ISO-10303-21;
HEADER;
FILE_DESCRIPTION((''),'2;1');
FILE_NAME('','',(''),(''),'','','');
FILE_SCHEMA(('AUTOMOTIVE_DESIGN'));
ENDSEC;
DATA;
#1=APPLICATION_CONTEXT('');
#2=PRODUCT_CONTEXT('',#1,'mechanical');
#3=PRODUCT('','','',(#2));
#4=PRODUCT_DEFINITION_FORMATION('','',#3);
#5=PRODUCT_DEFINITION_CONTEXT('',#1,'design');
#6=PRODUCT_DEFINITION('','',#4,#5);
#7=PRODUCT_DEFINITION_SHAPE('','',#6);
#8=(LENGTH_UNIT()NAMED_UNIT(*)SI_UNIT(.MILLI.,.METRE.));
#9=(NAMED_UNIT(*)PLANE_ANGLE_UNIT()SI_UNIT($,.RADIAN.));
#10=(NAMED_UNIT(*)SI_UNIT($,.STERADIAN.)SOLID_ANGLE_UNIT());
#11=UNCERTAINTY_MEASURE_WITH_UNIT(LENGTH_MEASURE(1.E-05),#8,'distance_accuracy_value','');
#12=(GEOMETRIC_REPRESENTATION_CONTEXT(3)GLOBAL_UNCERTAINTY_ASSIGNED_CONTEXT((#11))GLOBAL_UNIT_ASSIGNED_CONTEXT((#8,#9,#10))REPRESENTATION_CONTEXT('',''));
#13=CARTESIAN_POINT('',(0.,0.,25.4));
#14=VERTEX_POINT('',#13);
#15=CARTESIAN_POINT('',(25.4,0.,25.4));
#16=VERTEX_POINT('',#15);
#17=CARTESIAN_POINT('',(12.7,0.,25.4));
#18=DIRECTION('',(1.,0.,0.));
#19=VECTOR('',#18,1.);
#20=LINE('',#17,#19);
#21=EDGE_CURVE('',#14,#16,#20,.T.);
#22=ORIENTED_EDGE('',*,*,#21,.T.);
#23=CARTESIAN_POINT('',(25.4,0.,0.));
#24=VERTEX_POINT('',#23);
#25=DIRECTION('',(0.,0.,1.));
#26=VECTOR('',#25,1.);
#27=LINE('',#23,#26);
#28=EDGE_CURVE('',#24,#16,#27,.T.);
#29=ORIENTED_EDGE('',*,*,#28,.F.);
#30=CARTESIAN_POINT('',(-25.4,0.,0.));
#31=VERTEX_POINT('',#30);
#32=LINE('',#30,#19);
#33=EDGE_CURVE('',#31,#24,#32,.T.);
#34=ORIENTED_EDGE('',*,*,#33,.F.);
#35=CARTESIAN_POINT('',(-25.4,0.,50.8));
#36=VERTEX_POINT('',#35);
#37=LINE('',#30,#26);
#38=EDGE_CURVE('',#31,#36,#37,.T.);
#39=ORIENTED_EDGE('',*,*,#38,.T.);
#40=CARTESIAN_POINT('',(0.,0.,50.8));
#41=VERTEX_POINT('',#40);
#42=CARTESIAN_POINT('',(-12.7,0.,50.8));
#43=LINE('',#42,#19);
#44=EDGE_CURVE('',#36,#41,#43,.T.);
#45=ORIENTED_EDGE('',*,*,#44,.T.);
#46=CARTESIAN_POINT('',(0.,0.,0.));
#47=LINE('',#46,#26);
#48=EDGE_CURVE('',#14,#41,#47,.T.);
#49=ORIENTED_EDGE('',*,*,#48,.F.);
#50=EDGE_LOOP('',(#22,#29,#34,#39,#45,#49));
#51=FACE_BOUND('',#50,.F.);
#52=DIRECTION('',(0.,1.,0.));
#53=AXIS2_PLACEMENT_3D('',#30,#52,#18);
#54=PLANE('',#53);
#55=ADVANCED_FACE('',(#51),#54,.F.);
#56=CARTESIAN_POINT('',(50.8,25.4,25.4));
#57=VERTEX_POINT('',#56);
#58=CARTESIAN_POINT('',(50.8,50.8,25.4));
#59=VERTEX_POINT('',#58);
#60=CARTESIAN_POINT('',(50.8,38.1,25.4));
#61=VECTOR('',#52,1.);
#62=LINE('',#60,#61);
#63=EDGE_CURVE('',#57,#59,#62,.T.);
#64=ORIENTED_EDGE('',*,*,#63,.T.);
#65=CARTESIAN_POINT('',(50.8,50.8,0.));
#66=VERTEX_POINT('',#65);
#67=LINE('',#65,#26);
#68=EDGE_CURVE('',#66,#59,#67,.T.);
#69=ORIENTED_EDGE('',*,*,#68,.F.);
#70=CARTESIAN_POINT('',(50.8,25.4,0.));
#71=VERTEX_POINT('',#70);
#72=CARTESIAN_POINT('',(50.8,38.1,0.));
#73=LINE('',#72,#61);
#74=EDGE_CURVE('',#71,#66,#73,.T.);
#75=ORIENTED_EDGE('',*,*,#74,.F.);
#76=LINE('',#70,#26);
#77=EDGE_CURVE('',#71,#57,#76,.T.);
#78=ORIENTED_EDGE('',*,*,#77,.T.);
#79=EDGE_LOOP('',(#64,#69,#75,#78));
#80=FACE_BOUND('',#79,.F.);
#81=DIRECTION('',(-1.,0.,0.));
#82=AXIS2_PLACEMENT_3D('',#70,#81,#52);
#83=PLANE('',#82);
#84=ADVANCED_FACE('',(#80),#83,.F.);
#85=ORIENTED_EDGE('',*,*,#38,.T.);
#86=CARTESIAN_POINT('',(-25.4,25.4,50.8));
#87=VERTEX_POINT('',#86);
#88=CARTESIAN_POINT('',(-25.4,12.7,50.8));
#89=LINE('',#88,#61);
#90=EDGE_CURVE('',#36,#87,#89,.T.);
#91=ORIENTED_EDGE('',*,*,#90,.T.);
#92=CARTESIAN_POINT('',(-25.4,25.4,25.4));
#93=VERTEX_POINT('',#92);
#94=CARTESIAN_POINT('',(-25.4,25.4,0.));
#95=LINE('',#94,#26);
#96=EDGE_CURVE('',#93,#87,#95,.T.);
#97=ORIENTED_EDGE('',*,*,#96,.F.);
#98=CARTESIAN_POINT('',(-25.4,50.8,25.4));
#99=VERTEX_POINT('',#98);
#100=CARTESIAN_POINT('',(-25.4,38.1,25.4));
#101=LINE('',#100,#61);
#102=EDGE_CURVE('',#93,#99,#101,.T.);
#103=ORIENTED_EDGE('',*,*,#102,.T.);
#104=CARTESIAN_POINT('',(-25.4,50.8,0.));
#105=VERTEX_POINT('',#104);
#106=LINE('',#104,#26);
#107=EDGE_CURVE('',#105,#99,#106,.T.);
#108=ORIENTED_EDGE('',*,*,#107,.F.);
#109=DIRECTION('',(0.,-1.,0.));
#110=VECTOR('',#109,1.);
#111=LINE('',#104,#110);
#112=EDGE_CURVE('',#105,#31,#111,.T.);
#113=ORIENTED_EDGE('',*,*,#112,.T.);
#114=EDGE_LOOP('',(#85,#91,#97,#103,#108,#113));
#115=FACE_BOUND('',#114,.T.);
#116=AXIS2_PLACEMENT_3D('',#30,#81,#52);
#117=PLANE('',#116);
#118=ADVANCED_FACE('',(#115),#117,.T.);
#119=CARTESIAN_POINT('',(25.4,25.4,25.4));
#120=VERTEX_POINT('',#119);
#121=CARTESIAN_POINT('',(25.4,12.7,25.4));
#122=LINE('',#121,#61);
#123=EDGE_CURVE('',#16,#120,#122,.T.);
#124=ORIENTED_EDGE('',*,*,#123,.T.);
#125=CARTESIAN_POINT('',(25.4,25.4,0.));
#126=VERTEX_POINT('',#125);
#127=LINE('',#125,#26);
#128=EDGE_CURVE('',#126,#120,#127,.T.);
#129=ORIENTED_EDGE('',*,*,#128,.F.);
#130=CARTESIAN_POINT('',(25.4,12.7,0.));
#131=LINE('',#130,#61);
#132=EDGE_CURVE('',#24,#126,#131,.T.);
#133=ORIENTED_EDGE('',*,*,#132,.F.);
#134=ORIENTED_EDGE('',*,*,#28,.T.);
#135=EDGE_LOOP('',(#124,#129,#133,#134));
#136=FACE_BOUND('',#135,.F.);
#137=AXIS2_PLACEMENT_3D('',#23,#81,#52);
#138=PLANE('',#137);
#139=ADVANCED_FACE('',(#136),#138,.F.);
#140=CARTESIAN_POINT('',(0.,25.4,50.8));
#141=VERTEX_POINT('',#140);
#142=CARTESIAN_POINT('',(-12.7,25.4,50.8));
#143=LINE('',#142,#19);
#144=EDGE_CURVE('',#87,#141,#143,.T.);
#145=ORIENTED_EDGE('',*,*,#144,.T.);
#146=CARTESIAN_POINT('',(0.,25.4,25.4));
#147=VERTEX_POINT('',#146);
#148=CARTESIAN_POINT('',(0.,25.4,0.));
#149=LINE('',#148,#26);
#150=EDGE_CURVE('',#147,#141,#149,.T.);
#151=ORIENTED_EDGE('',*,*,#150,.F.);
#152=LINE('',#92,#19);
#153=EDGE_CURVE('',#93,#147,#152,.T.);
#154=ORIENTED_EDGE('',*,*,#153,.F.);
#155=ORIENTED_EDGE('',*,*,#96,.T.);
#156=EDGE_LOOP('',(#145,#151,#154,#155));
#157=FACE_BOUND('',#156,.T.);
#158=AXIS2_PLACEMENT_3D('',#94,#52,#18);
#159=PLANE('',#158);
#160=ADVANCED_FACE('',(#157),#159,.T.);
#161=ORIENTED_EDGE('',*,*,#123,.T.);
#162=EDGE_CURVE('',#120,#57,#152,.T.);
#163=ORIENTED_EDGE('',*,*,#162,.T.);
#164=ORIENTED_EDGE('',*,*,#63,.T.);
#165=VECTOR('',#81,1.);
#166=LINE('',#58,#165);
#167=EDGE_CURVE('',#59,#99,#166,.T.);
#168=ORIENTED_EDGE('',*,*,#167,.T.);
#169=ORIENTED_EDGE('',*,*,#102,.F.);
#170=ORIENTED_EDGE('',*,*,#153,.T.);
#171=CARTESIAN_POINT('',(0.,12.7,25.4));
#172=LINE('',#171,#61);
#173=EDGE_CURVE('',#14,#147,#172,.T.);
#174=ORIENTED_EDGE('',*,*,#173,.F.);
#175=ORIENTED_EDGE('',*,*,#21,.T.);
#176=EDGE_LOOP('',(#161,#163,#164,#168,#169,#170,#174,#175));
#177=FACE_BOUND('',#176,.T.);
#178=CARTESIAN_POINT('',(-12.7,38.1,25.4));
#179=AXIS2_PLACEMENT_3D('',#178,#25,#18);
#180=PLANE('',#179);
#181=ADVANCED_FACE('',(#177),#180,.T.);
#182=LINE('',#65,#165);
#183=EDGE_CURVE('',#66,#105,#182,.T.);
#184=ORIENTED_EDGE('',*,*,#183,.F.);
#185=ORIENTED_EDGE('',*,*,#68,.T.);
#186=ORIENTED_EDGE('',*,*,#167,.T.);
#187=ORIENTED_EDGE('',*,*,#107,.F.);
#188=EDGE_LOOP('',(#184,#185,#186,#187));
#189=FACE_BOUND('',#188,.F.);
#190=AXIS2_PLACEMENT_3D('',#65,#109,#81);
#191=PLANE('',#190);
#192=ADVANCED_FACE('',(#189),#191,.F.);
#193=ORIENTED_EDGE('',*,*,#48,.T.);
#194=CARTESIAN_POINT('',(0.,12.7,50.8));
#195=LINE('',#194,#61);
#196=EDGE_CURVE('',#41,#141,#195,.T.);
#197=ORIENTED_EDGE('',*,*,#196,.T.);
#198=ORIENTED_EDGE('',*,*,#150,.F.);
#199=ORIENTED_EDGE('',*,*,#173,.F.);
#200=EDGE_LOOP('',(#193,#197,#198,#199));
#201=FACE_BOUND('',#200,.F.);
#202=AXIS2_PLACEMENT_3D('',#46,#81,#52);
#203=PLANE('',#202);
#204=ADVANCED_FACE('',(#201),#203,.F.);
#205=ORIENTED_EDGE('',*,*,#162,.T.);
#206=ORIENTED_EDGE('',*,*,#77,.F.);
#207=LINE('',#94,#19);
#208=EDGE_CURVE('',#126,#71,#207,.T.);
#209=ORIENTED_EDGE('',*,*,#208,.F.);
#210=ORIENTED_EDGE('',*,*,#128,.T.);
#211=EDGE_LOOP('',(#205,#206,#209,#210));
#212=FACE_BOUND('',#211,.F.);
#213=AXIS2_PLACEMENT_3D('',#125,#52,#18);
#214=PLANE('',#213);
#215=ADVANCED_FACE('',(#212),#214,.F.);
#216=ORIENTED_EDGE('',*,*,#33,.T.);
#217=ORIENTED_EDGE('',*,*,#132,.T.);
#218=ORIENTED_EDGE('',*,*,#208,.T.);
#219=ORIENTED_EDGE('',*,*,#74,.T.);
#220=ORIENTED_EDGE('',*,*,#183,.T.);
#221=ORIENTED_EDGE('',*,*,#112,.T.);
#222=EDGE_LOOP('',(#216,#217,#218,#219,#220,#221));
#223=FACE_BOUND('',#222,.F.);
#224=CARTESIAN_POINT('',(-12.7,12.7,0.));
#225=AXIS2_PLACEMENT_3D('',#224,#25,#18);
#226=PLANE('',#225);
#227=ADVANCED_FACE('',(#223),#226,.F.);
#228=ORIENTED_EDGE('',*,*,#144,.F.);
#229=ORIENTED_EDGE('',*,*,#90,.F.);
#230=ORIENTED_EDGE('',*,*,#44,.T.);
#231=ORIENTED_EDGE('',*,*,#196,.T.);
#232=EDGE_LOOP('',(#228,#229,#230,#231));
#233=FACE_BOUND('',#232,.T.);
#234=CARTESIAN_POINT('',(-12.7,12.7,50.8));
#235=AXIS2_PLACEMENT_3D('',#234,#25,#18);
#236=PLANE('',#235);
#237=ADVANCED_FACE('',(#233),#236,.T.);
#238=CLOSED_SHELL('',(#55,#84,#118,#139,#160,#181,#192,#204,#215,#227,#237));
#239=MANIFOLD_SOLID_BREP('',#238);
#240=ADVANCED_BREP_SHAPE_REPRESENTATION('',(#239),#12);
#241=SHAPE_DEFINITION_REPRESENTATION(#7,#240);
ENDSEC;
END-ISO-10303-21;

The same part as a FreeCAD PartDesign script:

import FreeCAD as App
import Part
import Sketcher
from FreeCAD import Vector
Q = App.Units.Quantity

doc = App.newDocument("Part")
body = doc.addObject("PartDesign::Body", "Body")

sketch1 = doc.addObject("Sketcher::SketchObject", "Sketch")
body.addObject(sketch1)
sketch1.AttachmentSupport = (doc.XY_Plane, [""])
sketch1.MapMode = "FlatFace"
sketch1.addGeometry([
    Part.LineSegment(Vector(-25, 51, 0), Vector(-25, 25, 0)),
    Part.LineSegment(Vector(-25, 25, 0), Vector(0, 25, 0)),
    Part.LineSegment(Vector(0, 25, 0), Vector(0, 0, 0)),
    Part.LineSegment(Vector(0, 0, 0), Vector(25, 0, 0)),
    Part.LineSegment(Vector(25, 0, 0), Vector(25, 25, 0)),
    Part.LineSegment(Vector(25, 25, 0), Vector(51, 25, 0)),
    Part.LineSegment(Vector(51, 25, 0), Vector(51, 51, 0)),
    Part.LineSegment(Vector(51, 51, 0), Vector(-25, 51, 0)),
], False)
sketch1.addConstraint([
    Sketcher.Constraint("Coincident", 0, 2, 1, 1),
    Sketcher.Constraint("Coincident", 1, 2, 2, 1),
    Sketcher.Constraint("Coincident", 2, 2, 3, 1),
    Sketcher.Constraint("Coincident", 3, 2, 4, 1),
    Sketcher.Constraint("Coincident", 4, 2, 5, 1),
    Sketcher.Constraint("Coincident", 5, 2, 6, 1),
    Sketcher.Constraint("Coincident", 6, 2, 7, 1),
    Sketcher.Constraint("Coincident", 7, 2, 0, 1),
    Sketcher.Constraint("Vertical", 0),
    Sketcher.Constraint("Horizontal", 1),
    Sketcher.Constraint("Vertical", 2),
    Sketcher.Constraint("Horizontal", 3),
    Sketcher.Constraint("Vertical", 4),
    Sketcher.Constraint("Horizontal", 5),
    Sketcher.Constraint("Vertical", 6),
    Sketcher.Constraint("Horizontal", 7),
    Sketcher.Constraint("Coincident", 2, 2, -1, 1),
    Sketcher.Constraint("Symmetric", 0, 2, 4, 2, -2),
    Sketcher.Constraint("Equal", 3, 5),
    Sketcher.Constraint("Equal", 5, 0),
    Sketcher.Constraint("Equal", 0, 2),
    Sketcher.Constraint("DistanceX", 1, 1, 1, 2, Q("1 in")),
])
pad1 = doc.addObject("PartDesign::Pad", "Pad")
body.addObject(pad1)
pad1.Profile = sketch1
pad1.Length = Q("1 in")

sketch2 = doc.addObject("Sketcher::SketchObject", "Sketch001")
body.addObject(sketch2)
sketch2.AttachmentSupport = (doc.XY_Plane, [""])
sketch2.MapMode = "FlatFace"
sketch2.addGeometry([
    Part.LineSegment(Vector(-25, 25, 0), Vector(-25, 0, 0)),
    Part.LineSegment(Vector(-25, 0, 0), Vector(0, 0, 0)),
    Part.LineSegment(Vector(0, 0, 0), Vector(0, 25, 0)),
    Part.LineSegment(Vector(0, 25, 0), Vector(-25, 25, 0)),
], False)
sketch2.addConstraint([
    Sketcher.Constraint("Coincident", 0, 2, 1, 1),
    Sketcher.Constraint("Coincident", 1, 2, 2, 1),
    Sketcher.Constraint("Coincident", 2, 2, 3, 1),
    Sketcher.Constraint("Coincident", 3, 2, 0, 1),
    Sketcher.Constraint("Vertical", 0),
    Sketcher.Constraint("Horizontal", 1),
    Sketcher.Constraint("Vertical", 2),
    Sketcher.Constraint("Horizontal", 3),
    Sketcher.Constraint("Coincident", 1, 2, -1, 1),
    Sketcher.Constraint("Equal", 3, 0),
    Sketcher.Constraint("DistanceX", 1, 1, 1, 2, Q("1 in")),
])
pad2 = doc.addObject("PartDesign::Pad", "Pad001")
body.addObject(pad2)
pad2.Profile = sketch2
pad2.Length = Q("2 in")

doc.recompute()
